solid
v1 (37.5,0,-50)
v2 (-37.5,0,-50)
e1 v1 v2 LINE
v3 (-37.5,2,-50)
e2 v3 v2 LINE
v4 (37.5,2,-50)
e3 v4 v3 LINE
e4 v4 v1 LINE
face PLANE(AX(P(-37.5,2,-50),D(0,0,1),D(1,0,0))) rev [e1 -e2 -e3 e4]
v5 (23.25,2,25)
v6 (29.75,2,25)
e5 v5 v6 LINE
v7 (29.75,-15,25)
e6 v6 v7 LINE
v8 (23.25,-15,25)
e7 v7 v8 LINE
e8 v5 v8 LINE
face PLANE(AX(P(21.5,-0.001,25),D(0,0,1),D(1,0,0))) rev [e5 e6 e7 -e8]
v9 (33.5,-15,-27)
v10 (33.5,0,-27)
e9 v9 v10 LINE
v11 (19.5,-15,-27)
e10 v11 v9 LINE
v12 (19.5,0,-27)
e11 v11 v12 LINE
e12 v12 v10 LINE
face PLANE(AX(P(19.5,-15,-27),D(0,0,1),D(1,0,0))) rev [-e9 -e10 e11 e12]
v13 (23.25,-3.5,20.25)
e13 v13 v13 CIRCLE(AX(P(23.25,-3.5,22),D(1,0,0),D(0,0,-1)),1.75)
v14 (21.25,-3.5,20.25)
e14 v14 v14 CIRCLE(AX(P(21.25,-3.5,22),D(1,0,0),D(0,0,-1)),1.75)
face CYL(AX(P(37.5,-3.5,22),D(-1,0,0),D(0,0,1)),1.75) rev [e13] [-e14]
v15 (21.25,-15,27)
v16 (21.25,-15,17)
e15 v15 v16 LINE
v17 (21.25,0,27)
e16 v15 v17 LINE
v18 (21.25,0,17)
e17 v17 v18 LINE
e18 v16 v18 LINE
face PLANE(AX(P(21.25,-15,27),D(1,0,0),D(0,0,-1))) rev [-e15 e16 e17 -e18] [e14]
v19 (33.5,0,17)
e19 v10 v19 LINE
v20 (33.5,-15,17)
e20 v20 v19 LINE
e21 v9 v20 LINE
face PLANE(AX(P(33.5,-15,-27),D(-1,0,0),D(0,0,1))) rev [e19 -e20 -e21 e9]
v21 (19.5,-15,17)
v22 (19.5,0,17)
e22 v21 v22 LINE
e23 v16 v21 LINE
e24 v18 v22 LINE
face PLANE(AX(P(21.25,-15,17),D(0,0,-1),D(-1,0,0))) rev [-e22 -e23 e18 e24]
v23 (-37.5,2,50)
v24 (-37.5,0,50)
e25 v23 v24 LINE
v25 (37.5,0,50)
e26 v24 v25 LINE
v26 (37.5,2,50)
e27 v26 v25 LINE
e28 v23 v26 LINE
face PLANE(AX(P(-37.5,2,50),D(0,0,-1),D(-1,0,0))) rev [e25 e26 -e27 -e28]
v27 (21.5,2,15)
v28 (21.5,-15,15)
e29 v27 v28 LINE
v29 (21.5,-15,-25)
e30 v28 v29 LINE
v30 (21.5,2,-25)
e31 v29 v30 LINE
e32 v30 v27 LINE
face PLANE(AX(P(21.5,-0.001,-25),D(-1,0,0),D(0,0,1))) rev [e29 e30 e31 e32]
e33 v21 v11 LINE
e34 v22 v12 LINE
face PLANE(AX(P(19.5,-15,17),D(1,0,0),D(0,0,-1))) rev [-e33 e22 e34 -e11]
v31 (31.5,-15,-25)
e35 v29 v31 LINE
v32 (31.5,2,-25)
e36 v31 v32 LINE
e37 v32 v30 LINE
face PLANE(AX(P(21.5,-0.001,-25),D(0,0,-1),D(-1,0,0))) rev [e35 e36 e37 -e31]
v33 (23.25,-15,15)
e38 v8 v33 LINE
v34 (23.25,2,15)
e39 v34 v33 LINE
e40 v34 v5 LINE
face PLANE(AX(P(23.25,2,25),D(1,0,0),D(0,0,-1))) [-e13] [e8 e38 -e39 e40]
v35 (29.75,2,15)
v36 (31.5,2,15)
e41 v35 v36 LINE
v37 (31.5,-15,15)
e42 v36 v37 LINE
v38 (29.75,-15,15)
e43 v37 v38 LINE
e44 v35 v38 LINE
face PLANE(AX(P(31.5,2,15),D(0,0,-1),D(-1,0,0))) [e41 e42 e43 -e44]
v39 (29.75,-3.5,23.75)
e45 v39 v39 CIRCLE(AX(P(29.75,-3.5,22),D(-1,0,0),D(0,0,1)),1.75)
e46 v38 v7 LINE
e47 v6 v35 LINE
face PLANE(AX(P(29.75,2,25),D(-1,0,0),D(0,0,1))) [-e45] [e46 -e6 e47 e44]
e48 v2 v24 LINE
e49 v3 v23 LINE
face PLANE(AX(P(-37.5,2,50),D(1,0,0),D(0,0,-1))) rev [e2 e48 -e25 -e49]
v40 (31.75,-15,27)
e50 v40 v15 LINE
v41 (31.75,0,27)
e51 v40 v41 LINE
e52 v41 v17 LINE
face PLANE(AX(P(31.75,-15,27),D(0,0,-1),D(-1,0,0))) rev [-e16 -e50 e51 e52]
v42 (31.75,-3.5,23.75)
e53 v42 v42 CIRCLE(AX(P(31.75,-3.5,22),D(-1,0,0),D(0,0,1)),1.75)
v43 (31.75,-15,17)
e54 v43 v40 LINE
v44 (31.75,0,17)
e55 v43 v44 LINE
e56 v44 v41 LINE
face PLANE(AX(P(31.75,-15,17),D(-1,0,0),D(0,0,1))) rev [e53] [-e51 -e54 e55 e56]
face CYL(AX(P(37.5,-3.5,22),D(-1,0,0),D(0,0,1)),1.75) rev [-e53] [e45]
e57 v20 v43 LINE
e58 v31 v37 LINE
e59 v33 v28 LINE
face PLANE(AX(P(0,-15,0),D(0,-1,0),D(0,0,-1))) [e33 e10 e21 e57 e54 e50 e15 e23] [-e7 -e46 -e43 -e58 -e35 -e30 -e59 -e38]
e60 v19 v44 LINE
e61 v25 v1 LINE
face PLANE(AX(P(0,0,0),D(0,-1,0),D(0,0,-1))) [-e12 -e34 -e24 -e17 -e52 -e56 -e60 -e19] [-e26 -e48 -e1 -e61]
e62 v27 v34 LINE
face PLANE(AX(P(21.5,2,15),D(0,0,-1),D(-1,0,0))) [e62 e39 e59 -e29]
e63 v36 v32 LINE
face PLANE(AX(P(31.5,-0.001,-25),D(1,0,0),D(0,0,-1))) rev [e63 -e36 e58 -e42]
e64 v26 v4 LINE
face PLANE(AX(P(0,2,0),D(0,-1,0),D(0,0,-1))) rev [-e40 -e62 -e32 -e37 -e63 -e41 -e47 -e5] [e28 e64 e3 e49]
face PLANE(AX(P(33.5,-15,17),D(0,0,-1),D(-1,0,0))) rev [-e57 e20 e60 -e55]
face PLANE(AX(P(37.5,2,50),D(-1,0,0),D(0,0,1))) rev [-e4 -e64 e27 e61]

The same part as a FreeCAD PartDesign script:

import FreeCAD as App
import Part
import Sketcher

V = App.Vector


def add_polygon(sketch, points):
    """Adds a closed chain of lines whose ends are joined by coincident constraints."""
    first, n = sketch.GeometryCount, len(points)
    for a, b in zip(points, points[1:] + points[:1]):
        sketch.addGeometry(Part.LineSegment(App.Vector(*a, 0), App.Vector(*b, 0)), False)
    for i in range(n):
        sketch.addConstraint(Sketcher.Constraint("Coincident", first + i, 2, first + (i + 1) % n, 1))

doc = App.newDocument("Part")
body = doc.addObject("PartDesign::Body", "Body")

sketch1 = body.newObject("Sketcher::SketchObject", "Sketch")
sketch1.AttachmentSupport = (doc.getObject("XZ_Plane"), [""])
sketch1.MapMode = "FlatFace"
add_polygon(sketch1, [(-37.5, -50), (-37.5, 50), (37.5, 50), (37.5, -50)])
sketch1.addConstraint([
    Sketcher.Constraint("Vertical", 0),
    Sketcher.Constraint("Horizontal", 1),
    Sketcher.Constraint("Vertical", 2),
    Sketcher.Constraint("Horizontal", 3),
    Sketcher.Constraint("Symmetric", 0, 2, 2, 2, -1, 1),
    Sketcher.Constraint("DistanceX", 1, 1, 1, 2, 75.0),
    Sketcher.Constraint("DistanceY", 0, 1, 0, 2, 100.0),
])
pad1 = body.newObject("PartDesign::Pad", "Pad")
pad1.Profile = sketch1
pad1.Length = 2
pad1.Reversed = True

sketch2 = body.newObject("Sketcher::SketchObject", "Sketch001")
sketch2.AttachmentSupport = (doc.getObject("XZ_Plane"), [""])
sketch2.MapMode = "FlatFace"
sketch2.AttachmentOffset = App.Placement(V(0, 0, -2), App.Rotation())
add_polygon(sketch2, [(21.5, -25), (21.5, 25), (31.5, 25), (31.5, -25)])
sketch2.addConstraint([
    Sketcher.Constraint("Vertical", 0),
    Sketcher.Constraint("Horizontal", 1),
    Sketcher.Constraint("Vertical", 2),
    Sketcher.Constraint("Horizontal", 3),
    Sketcher.Constraint("DistanceX", 1, 1, 1, 2, 10.0),
    Sketcher.Constraint("DistanceY", 0, 1, 0, 2, 50.0),
    Sketcher.Constraint("DistanceY", -1, 1, 0, 2, 25.0),
    Sketcher.Constraint("DistanceX", -1, 1, 0, 2, 21.5),
])
pocket1 = body.newObject("PartDesign::Pocket", "Pocket")
pocket1.Profile = sketch2
pocket1.Type = "UpToFirst"
pocket1.Reversed = True

sketch3 = body.newObject("Sketcher::SketchObject", "Sketch002")
sketch3.AttachmentSupport = (doc.getObject("XZ_Plane"), [""])
sketch3.MapMode = "FlatFace"
add_polygon(sketch3, [(21.5, 25), (21.5, 15), (23.25, 15), (23.25, 25)])
add_polygon(sketch3, [(29.75, 25), (29.75, 15), (31.5, 15), (31.5, 25)])
sketch3.addConstraint([
    Sketcher.Constraint("Vertical", 0),
    Sketcher.Constraint("Horizontal", 1),
    Sketcher.Constraint("Vertical", 2),
    Sketcher.Constraint("Horizontal", 3),
    Sketcher.Constraint("Vertical", 4),
    Sketcher.Constraint("Horizontal", 5),
    Sketcher.Constraint("Vertical", 6),
    Sketcher.Constraint("Horizontal", 7),
    Sketcher.Constraint("Horizontal", 1, 2, 4, 2),
    Sketcher.Constraint("Horizontal", 3, 2, 6, 2),
    Sketcher.Constraint("Equal", 3, 5),
    Sketcher.Constraint("DistanceY", 0, 2, 0, 1, 10.0),
    Sketcher.Constraint("DistanceY", -1, 1, 0, 2, 15.0),
    Sketcher.Constraint("DistanceX", 0, 2, 5, 2, 10.0),
    Sketcher.Constraint("DistanceX", 1, 1, 1, 2, 1.75),
    Sketcher.Constraint("DistanceX", -1, 1, 0, 2, 21.5),
])
pad2 = body.newObject("PartDesign::Pad", "Pad001")
pad2.Profile = sketch3
pad2.Length = 2
pad2.Reversed = True

sketch4 = body.newObject("Sketcher::SketchObject", "Sketch003")
sketch4.AttachmentSupport = (doc.getObject("XZ_Plane"), [""])
sketch4.MapMode = "FlatFace"
add_polygon(sketch4, [(33.5, 17), (31.75, 17), (31.75, 27), (21.25, 27), (21.25, 17), (19.5, 17), (19.5, -27), (33.5, -27)])
add_polygon(sketch4, [(29.75, 15), (31.5, 15), (31.5, -25), (21.5, -25), (21.5, 15), (23.25, 15), (23.25, 25), (29.75, 25)])
sketch4.addConstraint([
    Sketcher.Constraint("Horizontal", 0),
    Sketcher.Constraint("Vertical", 1),
    Sketcher.Constraint("Horizontal", 2),
    Sketcher.Constraint("Vertical", 3),
    Sketcher.Constraint("Horizontal", 4),
    Sketcher.Constraint("Vertical", 5),
    Sketcher.Constraint("Horizontal", 6),
    Sketcher.Constraint("Vertical", 7),
    Sketcher.Constraint("Horizontal", 8),
    Sketcher.Constraint("Vertical", 9),
    Sketcher.Constraint("Horizontal", 10),
    Sketcher.Constraint("Vertical", 11),
    Sketcher.Constraint("Horizontal", 12),
    Sketcher.Constraint("Vertical", 13),
    Sketcher.Constraint("Horizontal", 14),
    Sketcher.Constraint("Vertical", 15),
    Sketcher.Constraint("Horizontal", 0, 2, 3, 2),
    Sketcher.Constraint("Horizontal", 8, 2, 11, 2),
    Sketcher.Constraint("Equal", 0, 4),
    Sketcher.Constraint("Equal", 4, 8),
    Sketcher.Constraint("Equal", 8, 12),
    Sketcher.Constraint("Equal", 10, 1),
    Sketcher.Constraint("Equal", 3, 13),
    Sketcher.Constraint("DistanceX", 6, 1, 6, 2, 14.0),
    Sketcher.Constraint("DistanceX", 10, 2, 10, 1, 10.0),
    Sketcher.Constraint("DistanceY", 5, 2, 5, 1, 44.0),
    Sketcher.Constraint("DistanceY", 9, 2, 9, 1, 40.0),
    Sketcher.Constraint("DistanceX", 2, 2, 2, 1, 10.5),
    Sketcher.Constraint("DistanceY", -1, 1, 0, 2, 17.0),
    Sketcher.Constraint("DistanceY", -1, 1, 8, 2, 15.0),
    Sketcher.Constraint("DistanceX", 8, 2, 7, 2, 2.0),
    Sketcher.Constraint("DistanceX", -1, 1, 4, 2, 19.5),
])
pad3 = body.newObject("PartDesign::Pad", "Pad002")
pad3.Profile = sketch4
pad3.Length = 15

sketch5 = body.newObject("Sketcher::SketchObject", "Sketch004")
sketch5.AttachmentSupport = (doc.getObject("YZ_Plane"), [""])
sketch5.MapMode = "FlatFace"
sketch5.AttachmentOffset = App.Placement(V(0, 0, 26.5), App.Rotation())
sketch5.addGeometry(Part.Circle(V(-3.5, 22, 0), V(0, 0, 1), 1.75), False)
sketch5.addConstraint([
    Sketcher.Constraint("Diameter", 0, 3.5),
    Sketcher.Constraint("DistanceY", -1, 1, 0, 3, 22.0),
    Sketcher.Constraint("DistanceX", 0, 3, -1, 1, 3.5),
])
pocket2 = body.newObject("PartDesign::Pocket", "Pocket001")
pocket2.Profile = sketch5
pocket2.Type = "ThroughAll"
pocket2.Midplane = True

doc.recompute()
